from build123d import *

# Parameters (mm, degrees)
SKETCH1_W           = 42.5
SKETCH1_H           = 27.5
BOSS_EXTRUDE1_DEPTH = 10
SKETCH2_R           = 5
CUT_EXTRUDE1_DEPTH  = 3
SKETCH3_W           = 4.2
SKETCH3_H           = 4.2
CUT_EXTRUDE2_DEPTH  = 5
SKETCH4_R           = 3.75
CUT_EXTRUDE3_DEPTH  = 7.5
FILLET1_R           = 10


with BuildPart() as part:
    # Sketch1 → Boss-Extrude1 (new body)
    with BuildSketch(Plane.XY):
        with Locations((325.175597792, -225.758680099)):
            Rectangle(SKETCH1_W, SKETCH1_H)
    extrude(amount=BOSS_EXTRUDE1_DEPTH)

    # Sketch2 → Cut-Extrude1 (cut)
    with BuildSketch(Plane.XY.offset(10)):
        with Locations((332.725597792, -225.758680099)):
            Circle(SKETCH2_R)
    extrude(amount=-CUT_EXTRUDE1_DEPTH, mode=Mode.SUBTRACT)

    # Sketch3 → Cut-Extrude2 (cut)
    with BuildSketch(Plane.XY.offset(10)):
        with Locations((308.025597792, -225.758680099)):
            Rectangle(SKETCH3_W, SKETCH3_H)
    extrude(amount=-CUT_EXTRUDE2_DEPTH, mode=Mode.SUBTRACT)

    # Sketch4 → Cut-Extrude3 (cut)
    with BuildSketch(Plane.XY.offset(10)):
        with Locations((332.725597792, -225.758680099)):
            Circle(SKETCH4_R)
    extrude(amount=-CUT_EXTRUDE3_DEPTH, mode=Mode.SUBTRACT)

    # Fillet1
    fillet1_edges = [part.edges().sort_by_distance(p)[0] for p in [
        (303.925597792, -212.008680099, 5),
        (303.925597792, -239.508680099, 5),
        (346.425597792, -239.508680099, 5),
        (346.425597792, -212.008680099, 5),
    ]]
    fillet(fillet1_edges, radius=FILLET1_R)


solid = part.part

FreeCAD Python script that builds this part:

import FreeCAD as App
import Part
import Sketcher
from FreeCAD import Vector
Q = App.Units.Quantity


def edges_at(feature, points):
    """Names of the edges that pass closest to the given points."""
    edges = feature.Shape.Edges
    near = lambda p: min(range(len(edges)), key=lambda i: edges[i].distToShape(Part.Vertex(*p))[0])
    return sorted({f"Edge{near(p) + 1}" for p in points})

doc = App.newDocument("Part")
body = doc.addObject("PartDesign::Body", "Body")

# Sketch on XY plane
sketch1 = doc.addObject("Sketcher::SketchObject", "Sketch")
body.addObject(sketch1)
sketch1.AttachmentSupport = (doc.XY_Plane, [""])
sketch1.MapMode = "FlatFace"
sketch1.addGeometry([
    Part.LineSegment(Vector(303.925598, -212.00868, 0), Vector(303.925598, -239.50868, 0)),
    Part.LineSegment(Vector(303.925598, -239.50868, 0), Vector(346.425598, -239.50868, 0)),
    Part.LineSegment(Vector(346.425598, -239.50868, 0), Vector(346.425598, -212.00868, 0)),
    Part.LineSegment(Vector(346.425598, -212.00868, 0), Vector(303.925598, -212.00868, 0)),
], False)
sketch1.addConstraint([
    Sketcher.Constraint("Coincident", 0, 2, 1, 1),
    Sketcher.Constraint("Coincident", 1, 2, 2, 1),
    Sketcher.Constraint("Coincident", 2, 2, 3, 1),
    Sketcher.Constraint("Coincident", 3, 2, 0, 1),
    Sketcher.Constraint("Vertical", 0),
    Sketcher.Constraint("Horizontal", 1),
    Sketcher.Constraint("Vertical", 2),
    Sketcher.Constraint("Horizontal", 3),
    Sketcher.Constraint("DistanceX", 1, 1, 1, 2, Q("42.5 mm")),
    Sketcher.Constraint("DistanceY", 0, 2, 0, 1, Q("27.5 mm")),
    Sketcher.Constraint("DistanceY", 0, 2, -1, 1, Q("239.50868 mm")),
    Sketcher.Constraint("DistanceX", -1, 1, 0, 2, Q("303.925598 mm")),
])
pad1 = doc.addObject("PartDesign::Pad", "Pad")
body.addObject(pad1)
pad1.Profile = sketch1
pad1.Length = 10

# Sketch on XY plane
sketch2 = doc.addObject("Sketcher::SketchObject", "Sketch001")
body.addObject(sketch2)
sketch2.AttachmentSupport = (doc.XY_Plane, [""])
sketch2.MapMode = "FlatFace"
sketch2.AttachmentOffset = App.Placement(Vector(0, 0, 10), App.Rotation())
sketch2.addGeometry(Part.Circle(Vector(332.725598, -225.75868, 0), Vector(0, 0, 1), 5), False)
sketch2.addConstraint([
    Sketcher.Constraint("Diameter", 0, Q("10 mm")),
    Sketcher.Constraint("DistanceY", 0, 3, -1, 1, Q("225.75868 mm")),
    Sketcher.Constraint("DistanceX", -1, 1, 0, 3, Q("332.725598 mm")),
])
pocket1 = doc.addObject("PartDesign::Pocket", "Pocket")
body.addObject(pocket1)
pocket1.Profile = sketch2
pocket1.Length = 3

# Sketch on XY plane
sketch3 = doc.addObject("Sketcher::SketchObject", "Sketch002")
body.addObject(sketch3)
sketch3.AttachmentSupport = (doc.XY_Plane, [""])
sketch3.MapMode = "FlatFace"
sketch3.AttachmentOffset = App.Placement(Vector(0, 0, 10), App.Rotation())
sketch3.addGeometry([
    Part.LineSegment(Vector(305.925598, -223.65868, 0), Vector(305.925598, -227.85868, 0)),
    Part.LineSegment(Vector(305.925598, -227.85868, 0), Vector(310.125598, -227.85868, 0)),
    Part.LineSegment(Vector(310.125598, -227.85868, 0), Vector(310.125598, -223.65868, 0)),
    Part.LineSegment(Vector(310.125598, -223.65868, 0), Vector(305.925598, -223.65868, 0)),
], False)
sketch3.addConstraint([
    Sketcher.Constraint("Coincident", 0, 2, 1, 1),
    Sketcher.Constraint("Coincident", 1, 2, 2, 1),
    Sketcher.Constraint("Coincident", 2, 2, 3, 1),
    Sketcher.Constraint("Coincident", 3, 2, 0, 1),
    Sketcher.Constraint("Vertical", 0),
    Sketcher.Constraint("Horizontal", 1),
    Sketcher.Constraint("Vertical", 2),
    Sketcher.Constraint("Horizontal", 3),
    Sketcher.Constraint("Equal", 3, 0),
    Sketcher.Constraint("DistanceX", 1, 1, 1, 2, Q("4.2 mm")),
    Sketcher.Constraint("DistanceY", 0, 2, -1, 1, Q("227.85868 mm")),
    Sketcher.Constraint("DistanceX", -1, 1, 0, 2, Q("305.925598 mm")),
])
pocket2 = doc.addObject("PartDesign::Pocket", "Pocket001")
body.addObject(pocket2)
pocket2.Profile = sketch3
pocket2.Length = 5

# Sketch on XY plane
sketch4 = doc.addObject("Sketcher::SketchObject", "Sketch003")
body.addObject(sketch4)
sketch4.AttachmentSupport = (doc.XY_Plane, [""])
sketch4.MapMode = "FlatFace"
sketch4.AttachmentOffset = App.Placement(Vector(0, 0, 10), App.Rotation())
sketch4.addGeometry(Part.Circle(Vector(332.725598, -225.75868, 0), Vector(0, 0, 1), 3.75), False)
sketch4.addConstraint([
    Sketcher.Constraint("Diameter", 0, Q("7.5 mm")),
    Sketcher.Constraint("DistanceY", 0, 3, -1, 1, Q("225.75868 mm")),
    Sketcher.Constraint("DistanceX", -1, 1, 0, 3, Q("332.725598 mm")),
])
pocket3 = doc.addObject("PartDesign::Pocket", "Pocket002")
body.addObject(pocket3)
pocket3.Profile = sketch4
pocket3.Length = 7.5
doc.recompute()

fillet = doc.addObject("PartDesign::Fillet", "Fillet")
body.addObject(fillet)
fillet.Base = (pocket3, edges_at(pocket3, [
    (303.926, -212.009, 5),
    (303.926, -239.509, 5),
    (346.426, -239.509, 5),
    (346.426, -212.009, 5),
]))
fillet.Radius = 10

doc.recompute()
